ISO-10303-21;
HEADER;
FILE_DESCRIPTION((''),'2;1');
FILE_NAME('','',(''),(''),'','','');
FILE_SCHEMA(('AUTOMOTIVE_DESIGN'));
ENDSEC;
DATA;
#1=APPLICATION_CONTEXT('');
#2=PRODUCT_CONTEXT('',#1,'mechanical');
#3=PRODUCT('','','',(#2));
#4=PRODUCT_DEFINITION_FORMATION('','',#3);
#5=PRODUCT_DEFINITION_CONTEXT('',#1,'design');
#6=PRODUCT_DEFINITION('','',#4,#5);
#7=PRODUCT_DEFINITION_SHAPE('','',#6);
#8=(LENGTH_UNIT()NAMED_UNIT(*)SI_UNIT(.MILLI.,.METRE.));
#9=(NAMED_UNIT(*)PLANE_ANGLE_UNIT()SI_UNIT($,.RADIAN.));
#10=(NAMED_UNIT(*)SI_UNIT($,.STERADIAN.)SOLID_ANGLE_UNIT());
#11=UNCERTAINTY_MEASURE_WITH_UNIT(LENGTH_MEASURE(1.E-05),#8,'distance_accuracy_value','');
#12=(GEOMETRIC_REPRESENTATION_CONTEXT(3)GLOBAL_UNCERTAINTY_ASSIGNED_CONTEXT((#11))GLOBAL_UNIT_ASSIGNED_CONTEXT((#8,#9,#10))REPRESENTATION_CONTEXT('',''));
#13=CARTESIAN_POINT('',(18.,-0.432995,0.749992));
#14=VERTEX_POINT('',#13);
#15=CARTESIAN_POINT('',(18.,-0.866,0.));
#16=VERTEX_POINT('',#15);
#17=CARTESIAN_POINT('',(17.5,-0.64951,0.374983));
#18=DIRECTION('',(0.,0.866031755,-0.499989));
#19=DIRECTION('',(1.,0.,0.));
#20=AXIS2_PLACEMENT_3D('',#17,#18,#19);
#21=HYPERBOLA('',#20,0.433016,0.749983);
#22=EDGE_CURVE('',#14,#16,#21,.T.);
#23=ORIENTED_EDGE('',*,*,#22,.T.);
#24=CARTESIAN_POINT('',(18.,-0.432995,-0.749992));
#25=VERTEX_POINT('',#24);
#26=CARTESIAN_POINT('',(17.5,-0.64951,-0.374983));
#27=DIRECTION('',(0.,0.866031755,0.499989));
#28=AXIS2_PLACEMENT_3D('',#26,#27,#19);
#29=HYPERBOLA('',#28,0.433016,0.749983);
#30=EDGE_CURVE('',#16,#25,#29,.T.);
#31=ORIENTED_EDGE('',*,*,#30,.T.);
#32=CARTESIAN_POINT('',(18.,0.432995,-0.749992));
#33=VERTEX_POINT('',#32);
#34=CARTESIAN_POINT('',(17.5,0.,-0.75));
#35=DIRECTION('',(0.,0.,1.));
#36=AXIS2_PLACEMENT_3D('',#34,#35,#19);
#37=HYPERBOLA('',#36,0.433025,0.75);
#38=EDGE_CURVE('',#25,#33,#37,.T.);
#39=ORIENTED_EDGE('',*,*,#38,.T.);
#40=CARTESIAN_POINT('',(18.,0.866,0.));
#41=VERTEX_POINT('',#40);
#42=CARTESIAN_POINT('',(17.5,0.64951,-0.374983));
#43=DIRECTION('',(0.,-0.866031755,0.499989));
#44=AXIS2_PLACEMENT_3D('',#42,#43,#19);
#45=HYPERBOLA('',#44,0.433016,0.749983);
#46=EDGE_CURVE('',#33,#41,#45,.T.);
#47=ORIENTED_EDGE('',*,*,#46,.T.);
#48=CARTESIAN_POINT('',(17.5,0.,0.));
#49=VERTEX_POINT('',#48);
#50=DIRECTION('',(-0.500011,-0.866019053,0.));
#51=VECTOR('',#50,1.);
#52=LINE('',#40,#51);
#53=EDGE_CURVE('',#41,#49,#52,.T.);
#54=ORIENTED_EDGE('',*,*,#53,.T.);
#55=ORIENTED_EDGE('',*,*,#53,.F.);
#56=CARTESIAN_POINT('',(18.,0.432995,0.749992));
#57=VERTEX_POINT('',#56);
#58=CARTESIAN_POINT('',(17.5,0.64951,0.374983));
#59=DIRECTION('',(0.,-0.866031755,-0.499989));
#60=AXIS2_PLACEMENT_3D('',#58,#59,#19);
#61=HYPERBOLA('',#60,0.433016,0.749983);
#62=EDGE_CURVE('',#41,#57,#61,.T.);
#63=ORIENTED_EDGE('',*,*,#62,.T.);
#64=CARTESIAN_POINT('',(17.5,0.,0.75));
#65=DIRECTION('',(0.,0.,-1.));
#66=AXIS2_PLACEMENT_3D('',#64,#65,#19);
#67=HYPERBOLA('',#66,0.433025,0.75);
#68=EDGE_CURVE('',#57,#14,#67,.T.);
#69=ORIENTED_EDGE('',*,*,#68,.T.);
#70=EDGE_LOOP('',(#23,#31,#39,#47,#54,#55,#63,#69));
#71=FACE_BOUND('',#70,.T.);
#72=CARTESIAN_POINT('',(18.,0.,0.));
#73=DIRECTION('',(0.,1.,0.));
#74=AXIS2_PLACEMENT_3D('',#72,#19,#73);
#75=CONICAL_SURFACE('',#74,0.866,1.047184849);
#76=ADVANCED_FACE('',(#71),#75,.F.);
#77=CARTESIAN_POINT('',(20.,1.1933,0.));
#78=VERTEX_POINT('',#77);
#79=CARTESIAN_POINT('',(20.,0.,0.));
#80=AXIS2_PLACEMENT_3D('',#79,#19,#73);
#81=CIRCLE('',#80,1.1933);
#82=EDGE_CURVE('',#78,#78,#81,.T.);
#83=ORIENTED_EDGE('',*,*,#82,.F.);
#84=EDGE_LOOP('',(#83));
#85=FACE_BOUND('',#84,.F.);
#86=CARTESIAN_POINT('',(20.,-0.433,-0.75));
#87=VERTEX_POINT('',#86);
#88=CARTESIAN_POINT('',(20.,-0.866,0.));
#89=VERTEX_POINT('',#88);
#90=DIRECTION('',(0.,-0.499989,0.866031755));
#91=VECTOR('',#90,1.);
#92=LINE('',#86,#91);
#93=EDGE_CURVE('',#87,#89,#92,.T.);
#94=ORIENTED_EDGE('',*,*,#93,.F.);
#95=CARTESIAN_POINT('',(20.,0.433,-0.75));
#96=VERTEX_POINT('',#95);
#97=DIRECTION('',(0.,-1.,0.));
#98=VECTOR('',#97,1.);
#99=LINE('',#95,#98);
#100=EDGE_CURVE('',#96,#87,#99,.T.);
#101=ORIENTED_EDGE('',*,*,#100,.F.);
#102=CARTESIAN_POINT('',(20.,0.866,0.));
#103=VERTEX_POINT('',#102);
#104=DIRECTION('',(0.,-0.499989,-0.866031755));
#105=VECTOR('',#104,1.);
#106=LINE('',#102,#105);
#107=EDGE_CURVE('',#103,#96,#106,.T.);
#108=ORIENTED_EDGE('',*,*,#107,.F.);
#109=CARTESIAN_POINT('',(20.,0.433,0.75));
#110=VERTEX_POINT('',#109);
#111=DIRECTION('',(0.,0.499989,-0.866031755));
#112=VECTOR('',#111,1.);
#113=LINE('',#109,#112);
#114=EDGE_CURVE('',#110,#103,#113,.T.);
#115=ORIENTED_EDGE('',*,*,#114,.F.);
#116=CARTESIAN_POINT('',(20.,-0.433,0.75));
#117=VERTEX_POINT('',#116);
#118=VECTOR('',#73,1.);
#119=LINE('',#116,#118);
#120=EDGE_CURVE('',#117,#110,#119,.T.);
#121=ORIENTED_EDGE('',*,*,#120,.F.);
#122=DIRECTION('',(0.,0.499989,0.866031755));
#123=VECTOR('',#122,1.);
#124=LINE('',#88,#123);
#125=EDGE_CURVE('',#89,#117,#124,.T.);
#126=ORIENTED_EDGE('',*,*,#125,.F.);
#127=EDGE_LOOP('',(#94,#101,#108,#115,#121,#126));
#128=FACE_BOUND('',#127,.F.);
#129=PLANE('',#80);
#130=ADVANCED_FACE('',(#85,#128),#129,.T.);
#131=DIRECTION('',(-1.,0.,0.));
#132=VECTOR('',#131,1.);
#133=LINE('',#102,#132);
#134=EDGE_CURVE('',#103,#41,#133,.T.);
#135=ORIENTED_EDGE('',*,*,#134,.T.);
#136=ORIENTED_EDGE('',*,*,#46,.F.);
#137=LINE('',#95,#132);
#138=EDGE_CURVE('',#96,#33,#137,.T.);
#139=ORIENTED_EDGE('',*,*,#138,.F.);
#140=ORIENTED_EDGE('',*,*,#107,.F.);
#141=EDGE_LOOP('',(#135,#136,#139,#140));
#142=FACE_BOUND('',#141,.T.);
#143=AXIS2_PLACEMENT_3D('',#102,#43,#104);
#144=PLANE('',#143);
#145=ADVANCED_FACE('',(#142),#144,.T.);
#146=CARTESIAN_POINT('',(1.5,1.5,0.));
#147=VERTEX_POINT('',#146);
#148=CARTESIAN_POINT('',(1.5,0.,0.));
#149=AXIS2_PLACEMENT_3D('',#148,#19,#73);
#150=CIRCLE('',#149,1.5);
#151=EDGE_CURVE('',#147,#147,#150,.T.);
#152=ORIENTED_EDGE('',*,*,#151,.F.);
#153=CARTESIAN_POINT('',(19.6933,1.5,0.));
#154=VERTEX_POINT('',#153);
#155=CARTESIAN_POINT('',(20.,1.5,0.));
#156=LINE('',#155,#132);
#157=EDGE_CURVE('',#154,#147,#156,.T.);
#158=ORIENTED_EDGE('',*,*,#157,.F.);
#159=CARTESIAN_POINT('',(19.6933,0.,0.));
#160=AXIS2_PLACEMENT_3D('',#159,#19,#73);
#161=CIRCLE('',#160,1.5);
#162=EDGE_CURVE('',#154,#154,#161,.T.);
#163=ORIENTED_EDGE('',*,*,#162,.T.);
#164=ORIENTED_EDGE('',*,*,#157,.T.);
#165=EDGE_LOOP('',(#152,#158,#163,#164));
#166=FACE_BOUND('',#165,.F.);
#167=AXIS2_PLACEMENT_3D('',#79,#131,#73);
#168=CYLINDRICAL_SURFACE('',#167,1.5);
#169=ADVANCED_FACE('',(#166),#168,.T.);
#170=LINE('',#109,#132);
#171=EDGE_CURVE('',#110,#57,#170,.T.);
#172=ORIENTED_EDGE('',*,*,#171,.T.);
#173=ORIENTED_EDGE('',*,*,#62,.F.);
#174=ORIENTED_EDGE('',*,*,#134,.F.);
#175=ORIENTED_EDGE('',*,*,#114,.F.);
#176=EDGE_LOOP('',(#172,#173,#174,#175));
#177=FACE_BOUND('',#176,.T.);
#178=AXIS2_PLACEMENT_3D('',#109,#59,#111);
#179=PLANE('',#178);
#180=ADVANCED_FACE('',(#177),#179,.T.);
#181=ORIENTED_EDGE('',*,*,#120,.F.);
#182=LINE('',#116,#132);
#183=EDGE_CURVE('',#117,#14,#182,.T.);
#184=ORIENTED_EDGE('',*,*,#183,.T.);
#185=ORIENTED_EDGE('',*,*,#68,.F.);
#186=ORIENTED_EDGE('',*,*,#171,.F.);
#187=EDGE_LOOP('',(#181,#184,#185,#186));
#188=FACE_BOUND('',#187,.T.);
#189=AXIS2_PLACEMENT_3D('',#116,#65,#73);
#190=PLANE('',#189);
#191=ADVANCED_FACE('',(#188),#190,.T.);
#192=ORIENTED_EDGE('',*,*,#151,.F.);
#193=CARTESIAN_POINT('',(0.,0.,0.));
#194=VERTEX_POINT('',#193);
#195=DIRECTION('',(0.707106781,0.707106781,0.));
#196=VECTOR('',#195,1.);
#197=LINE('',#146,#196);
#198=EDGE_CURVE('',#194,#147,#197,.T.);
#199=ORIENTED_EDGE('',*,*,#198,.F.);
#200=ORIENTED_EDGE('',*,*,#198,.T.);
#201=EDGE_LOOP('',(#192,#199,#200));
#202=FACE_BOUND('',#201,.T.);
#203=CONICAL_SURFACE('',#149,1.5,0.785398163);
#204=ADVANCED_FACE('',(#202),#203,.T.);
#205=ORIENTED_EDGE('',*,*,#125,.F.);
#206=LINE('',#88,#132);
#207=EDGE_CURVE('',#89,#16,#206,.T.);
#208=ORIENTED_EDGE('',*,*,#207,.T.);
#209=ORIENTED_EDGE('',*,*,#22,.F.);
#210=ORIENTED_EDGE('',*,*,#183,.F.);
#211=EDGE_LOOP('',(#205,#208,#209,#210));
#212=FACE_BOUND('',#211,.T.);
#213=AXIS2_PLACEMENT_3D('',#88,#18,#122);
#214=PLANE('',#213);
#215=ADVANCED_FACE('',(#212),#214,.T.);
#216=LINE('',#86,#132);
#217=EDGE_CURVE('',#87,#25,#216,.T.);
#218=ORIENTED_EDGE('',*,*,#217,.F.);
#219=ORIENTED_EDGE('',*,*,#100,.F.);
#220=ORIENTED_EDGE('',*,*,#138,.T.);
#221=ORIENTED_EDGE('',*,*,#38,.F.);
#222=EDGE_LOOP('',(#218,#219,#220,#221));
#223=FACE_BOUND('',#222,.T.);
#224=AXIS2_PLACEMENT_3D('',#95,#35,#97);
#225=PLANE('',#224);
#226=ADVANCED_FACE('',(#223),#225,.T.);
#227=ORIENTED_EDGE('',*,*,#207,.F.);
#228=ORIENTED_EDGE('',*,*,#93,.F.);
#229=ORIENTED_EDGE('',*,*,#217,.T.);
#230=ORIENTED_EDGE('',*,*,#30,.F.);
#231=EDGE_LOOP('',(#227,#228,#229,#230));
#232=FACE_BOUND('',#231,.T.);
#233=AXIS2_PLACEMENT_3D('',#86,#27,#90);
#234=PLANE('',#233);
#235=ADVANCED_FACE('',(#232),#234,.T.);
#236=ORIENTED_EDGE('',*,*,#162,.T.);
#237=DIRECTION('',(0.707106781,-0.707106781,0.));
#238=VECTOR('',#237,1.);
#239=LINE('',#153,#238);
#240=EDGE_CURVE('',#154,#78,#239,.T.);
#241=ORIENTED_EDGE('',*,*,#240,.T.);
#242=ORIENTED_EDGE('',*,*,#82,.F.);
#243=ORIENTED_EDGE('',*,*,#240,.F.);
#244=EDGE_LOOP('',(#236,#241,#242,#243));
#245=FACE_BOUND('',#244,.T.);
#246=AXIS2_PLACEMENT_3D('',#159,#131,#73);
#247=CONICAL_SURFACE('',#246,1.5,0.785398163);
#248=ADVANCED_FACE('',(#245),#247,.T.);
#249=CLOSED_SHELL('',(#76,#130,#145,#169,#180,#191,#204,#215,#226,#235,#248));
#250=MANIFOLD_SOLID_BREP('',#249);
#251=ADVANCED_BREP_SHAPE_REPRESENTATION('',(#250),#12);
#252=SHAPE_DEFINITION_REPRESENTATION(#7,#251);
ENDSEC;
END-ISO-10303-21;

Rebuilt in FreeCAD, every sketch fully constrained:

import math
import FreeCAD as App
import Part
import Sketcher

V = App.Vector
Q = App.Units.Quantity


def edges_at(feature, points):
    """Names of the edges that pass closest to the given points."""
    edges = feature.Shape.Edges
    near = lambda p: min(range(len(edges)), key=lambda i: edges[i].distToShape(Part.Vertex(*p))[0])
    return sorted({f"Edge{near(p) + 1}" for p in points})

doc = App.newDocument("Part")
body = doc.addObject("PartDesign::Body", "Body")

sketch1 = body.newObject("Sketcher::SketchObject", "Sketch")
sketch1.AttachmentSupport = (doc.getObject("XY_Plane"), [""])
sketch1.MapMode = "FlatFace"
sketch1.addGeometry(Part.LineSegment(V(0, 1.5, 0), V(0, 0, 0)), False)
sketch1.addGeometry(Part.LineSegment(V(0, 0, 0), V(17.5, 0, 0)), False)
sketch1.addGeometry(Part.LineSegment(V(17.5, 0, 0), V(18, 0.9, 0)), False)
sketch1.addGeometry(Part.LineSegment(V(18, 0.9, 0), V(20, 0.9, 0)), False)
sketch1.addGeometry(Part.LineSegment(V(20, 0.9, 0), V(20, 1.5, 0)), False)
sketch1.addGeometry(Part.LineSegment(V(20, 1.5, 0), V(0, 1.5, 0)), False)
sketch1.addConstraint(Sketcher.Constraint("Coincident", 0, 2, 1, 1))
sketch1.addConstraint(Sketcher.Constraint("Coincident", 1, 2, 2, 1))
sketch1.addConstraint(Sketcher.Constraint("Coincident", 2, 2, 3, 1))
sketch1.addConstraint(Sketcher.Constraint("Coincident", 3, 2, 4, 1))
sketch1.addConstraint(Sketcher.Constraint("Coincident", 4, 2, 5, 1))
sketch1.addConstraint(Sketcher.Constraint("Coincident", 5, 2, 0, 1))
sketch1.addConstraint(Sketcher.Constraint("Vertical", 0))
sketch1.addConstraint(Sketcher.Constraint("Horizontal", 1))
sketch1.addConstraint(Sketcher.Constraint("Horizontal", 3))
sketch1.addConstraint(Sketcher.Constraint("Vertical", 4))
sketch1.addConstraint(Sketcher.Constraint("Horizontal", 5))
sketch1.addConstraint(Sketcher.Constraint("Coincident", 0, 2, -1, 1))
sketch1.addConstraint(Sketcher.Constraint("DistanceX", 3, 1, 3, 2, 2.0))
sketch1.addConstraint(Sketcher.Constraint("DistanceX", 5, 2, 5, 1, 20.0))
sketch1.addConstraint(Sketcher.Constraint("Angle", 2, Q("59.9993 deg")))
sketch1.addConstraint(Sketcher.Constraint("Distance", 2, 1.0))
sketch1.addConstraint(Sketcher.Constraint("DistanceY", 0, 2, 0, 1, 1.5))
revolution = body.newObject("PartDesign::Revolution", "Revolution")
revolution.Profile = sketch1
revolution.ReferenceAxis = (sketch1, ["H_Axis"])
revolution.Angle = 360

sketch2 = body.newObject("Sketcher::SketchObject", "Sketch001")
sketch2.AttachmentSupport = (doc.getObject("YZ_Plane"), [""])
sketch2.MapMode = "FlatFace"
sketch2.AttachmentOffset = App.Placement(V(0, 0, 20), App.Rotation())
sketch2.addGeometry(Part.LineSegment(V(0.4, 0.8, 0), V(0.9, 0, 0)), False)
sketch2.addGeometry(Part.ArcOfCircle(Part.Circle(V(0, 0, 0), V(0, 0, 1), 0.9), math.radians(0), math.radians(60)), False)
sketch2.addGeometry(Part.ArcOfCircle(Part.Circle(V(0, 0, 0), V(0, 0, 1), 0.9), math.radians(-60), math.radians(0)), False)
sketch2.addGeometry(Part.LineSegment(V(0.9, 0, 0), V(0.4, -0.8, 0)), False)
sketch2.addGeometry(Part.LineSegment(V(-0.4, 0.8, 0), V(0.4, 0.8, 0)), False)
sketch2.addGeometry(Part.ArcOfCircle(Part.Circle(V(0, 0, 0), V(0, 0, 1), 0.9), math.radians(60), math.radians(120)), False)
sketch2.addGeometry(Part.ArcOfCircle(Part.Circle(V(0, 0, 0), V(0, 0, 1), 0.9), math.radians(-120), math.radians(-60)), False)
sketch2.addGeometry(Part.LineSegment(V(-0.4, -0.8, 0), V(0.4, -0.8, 0)), False)
sketch2.addGeometry(Part.LineSegment(V(-0.9, 0, 0), V(-0.4, 0.8, 0)), False)
sketch2.addGeometry(Part.ArcOfCircle(Part.Circle(V(0, 0, 0), V(0, 0, 1), 0.9), math.radians(120), math.radians(180)), False)
sketch2.addGeometry(Part.ArcOfCircle(Part.Circle(V(0, 0, 0), V(0, 0, 1), 0.9), math.radians(180), math.radians(240)), False)
sketch2.addGeometry(Part.LineSegment(V(-0.9, 0, 0), V(-0.4, -0.8, 0)), False)
sketch2.addConstraint(Sketcher.Constraint("Coincident", 0, 1, 1, 2))
sketch2.addConstraint(Sketcher.Constraint("Coincident", 1, 1, 0, 2))
sketch2.addConstraint(Sketcher.Constraint("Coincident", 2, 1, 3, 2))
sketch2.addConstraint(Sketcher.Constraint("Coincident", 3, 1, 2, 2))
sketch2.addConstraint(Sketcher.Constraint("Coincident", 4, 1, 5, 2))
sketch2.addConstraint(Sketcher.Constraint("Coincident", 5, 1, 4, 2))
sketch2.addConstraint(Sketcher.Constraint("Coincident", 6, 1, 7, 1))
sketch2.addConstraint(Sketcher.Constraint("Coincident", 7, 2, 6, 2))
sketch2.addConstraint(Sketcher.Constraint("Coincident", 8, 1, 9, 2))
sketch2.addConstraint(Sketcher.Constraint("Coincident", 9, 1, 8, 2))
sketch2.addConstraint(Sketcher.Constraint("Coincident", 10, 1, 11, 1))
sketch2.addConstraint(Sketcher.Constraint("Coincident", 11, 2, 10, 2))
sketch2.addConstraint(Sketcher.Constraint("Horizontal", 4))
sketch2.addConstraint(Sketcher.Constraint("Horizontal", 7))
sketch2.addConstraint(Sketcher.Constraint("Coincident", 1, 3, -1, 1))
sketch2.addConstraint(Sketcher.Constraint("Coincident", 2, 3, -1, 1))
sketch2.addConstraint(Sketcher.Constraint("Coincident", 5, 3, -1, 1))
sketch2.addConstraint(Sketcher.Constraint("Coincident", 6, 3, -1, 1))
sketch2.addConstraint(Sketcher.Constraint("Coincident", 9, 3, -1, 1))
sketch2.addConstraint(Sketcher.Constraint("Coincident", 10, 3, -1, 1))
sketch2.addConstraint(Sketcher.Constraint("Coincident", 3, 1, 1, 1))
sketch2.addConstraint(Sketcher.Constraint("Coincident", 5, 1, 0, 1))
sketch2.addConstraint(Sketcher.Constraint("Coincident", 7, 2, 2, 1))
sketch2.addConstraint(Sketcher.Constraint("Coincident", 9, 1, 4, 1))
sketch2.addConstraint(Sketcher.Constraint("Coincident", 10, 1, 8, 1))
sketch2.addConstraint(Sketcher.Constraint("PointOnObject", 1, 1, -1))
sketch2.addConstraint(Sketcher.Constraint("PointOnObject", 8, 1, -1))
sketch2.addConstraint(Sketcher.Constraint("Parallel", 3, 8))
sketch2.addConstraint(Sketcher.Constraint("Parallel", 0, 11))
sketch2.addConstraint(Sketcher.Constraint("Angle", 0, Q("-60.0007 deg")))
sketch2.addConstraint(Sketcher.Constraint("Radius", 1, 0.866))
pad1 = body.newObject("PartDesign::Pad", "Pad")
pad1.Profile = sketch2
pad1.Type = "UpToFirst"
pad1.Reversed = True
doc.recompute()

chamfer = body.newObject("PartDesign::Chamfer", "Chamfer")
chamfer.Base = (pad1, edges_at(pad1, [(0, -1.5, 0)]))
chamfer.Size = 1.5
doc.recompute()

chamfer2 = body.newObject("PartDesign::Chamfer", "Chamfer001")
chamfer2.Base = (chamfer, edges_at(chamfer, [(20, -1.5, 0)]))
chamfer2.Size = 0.3067

doc.recompute()
